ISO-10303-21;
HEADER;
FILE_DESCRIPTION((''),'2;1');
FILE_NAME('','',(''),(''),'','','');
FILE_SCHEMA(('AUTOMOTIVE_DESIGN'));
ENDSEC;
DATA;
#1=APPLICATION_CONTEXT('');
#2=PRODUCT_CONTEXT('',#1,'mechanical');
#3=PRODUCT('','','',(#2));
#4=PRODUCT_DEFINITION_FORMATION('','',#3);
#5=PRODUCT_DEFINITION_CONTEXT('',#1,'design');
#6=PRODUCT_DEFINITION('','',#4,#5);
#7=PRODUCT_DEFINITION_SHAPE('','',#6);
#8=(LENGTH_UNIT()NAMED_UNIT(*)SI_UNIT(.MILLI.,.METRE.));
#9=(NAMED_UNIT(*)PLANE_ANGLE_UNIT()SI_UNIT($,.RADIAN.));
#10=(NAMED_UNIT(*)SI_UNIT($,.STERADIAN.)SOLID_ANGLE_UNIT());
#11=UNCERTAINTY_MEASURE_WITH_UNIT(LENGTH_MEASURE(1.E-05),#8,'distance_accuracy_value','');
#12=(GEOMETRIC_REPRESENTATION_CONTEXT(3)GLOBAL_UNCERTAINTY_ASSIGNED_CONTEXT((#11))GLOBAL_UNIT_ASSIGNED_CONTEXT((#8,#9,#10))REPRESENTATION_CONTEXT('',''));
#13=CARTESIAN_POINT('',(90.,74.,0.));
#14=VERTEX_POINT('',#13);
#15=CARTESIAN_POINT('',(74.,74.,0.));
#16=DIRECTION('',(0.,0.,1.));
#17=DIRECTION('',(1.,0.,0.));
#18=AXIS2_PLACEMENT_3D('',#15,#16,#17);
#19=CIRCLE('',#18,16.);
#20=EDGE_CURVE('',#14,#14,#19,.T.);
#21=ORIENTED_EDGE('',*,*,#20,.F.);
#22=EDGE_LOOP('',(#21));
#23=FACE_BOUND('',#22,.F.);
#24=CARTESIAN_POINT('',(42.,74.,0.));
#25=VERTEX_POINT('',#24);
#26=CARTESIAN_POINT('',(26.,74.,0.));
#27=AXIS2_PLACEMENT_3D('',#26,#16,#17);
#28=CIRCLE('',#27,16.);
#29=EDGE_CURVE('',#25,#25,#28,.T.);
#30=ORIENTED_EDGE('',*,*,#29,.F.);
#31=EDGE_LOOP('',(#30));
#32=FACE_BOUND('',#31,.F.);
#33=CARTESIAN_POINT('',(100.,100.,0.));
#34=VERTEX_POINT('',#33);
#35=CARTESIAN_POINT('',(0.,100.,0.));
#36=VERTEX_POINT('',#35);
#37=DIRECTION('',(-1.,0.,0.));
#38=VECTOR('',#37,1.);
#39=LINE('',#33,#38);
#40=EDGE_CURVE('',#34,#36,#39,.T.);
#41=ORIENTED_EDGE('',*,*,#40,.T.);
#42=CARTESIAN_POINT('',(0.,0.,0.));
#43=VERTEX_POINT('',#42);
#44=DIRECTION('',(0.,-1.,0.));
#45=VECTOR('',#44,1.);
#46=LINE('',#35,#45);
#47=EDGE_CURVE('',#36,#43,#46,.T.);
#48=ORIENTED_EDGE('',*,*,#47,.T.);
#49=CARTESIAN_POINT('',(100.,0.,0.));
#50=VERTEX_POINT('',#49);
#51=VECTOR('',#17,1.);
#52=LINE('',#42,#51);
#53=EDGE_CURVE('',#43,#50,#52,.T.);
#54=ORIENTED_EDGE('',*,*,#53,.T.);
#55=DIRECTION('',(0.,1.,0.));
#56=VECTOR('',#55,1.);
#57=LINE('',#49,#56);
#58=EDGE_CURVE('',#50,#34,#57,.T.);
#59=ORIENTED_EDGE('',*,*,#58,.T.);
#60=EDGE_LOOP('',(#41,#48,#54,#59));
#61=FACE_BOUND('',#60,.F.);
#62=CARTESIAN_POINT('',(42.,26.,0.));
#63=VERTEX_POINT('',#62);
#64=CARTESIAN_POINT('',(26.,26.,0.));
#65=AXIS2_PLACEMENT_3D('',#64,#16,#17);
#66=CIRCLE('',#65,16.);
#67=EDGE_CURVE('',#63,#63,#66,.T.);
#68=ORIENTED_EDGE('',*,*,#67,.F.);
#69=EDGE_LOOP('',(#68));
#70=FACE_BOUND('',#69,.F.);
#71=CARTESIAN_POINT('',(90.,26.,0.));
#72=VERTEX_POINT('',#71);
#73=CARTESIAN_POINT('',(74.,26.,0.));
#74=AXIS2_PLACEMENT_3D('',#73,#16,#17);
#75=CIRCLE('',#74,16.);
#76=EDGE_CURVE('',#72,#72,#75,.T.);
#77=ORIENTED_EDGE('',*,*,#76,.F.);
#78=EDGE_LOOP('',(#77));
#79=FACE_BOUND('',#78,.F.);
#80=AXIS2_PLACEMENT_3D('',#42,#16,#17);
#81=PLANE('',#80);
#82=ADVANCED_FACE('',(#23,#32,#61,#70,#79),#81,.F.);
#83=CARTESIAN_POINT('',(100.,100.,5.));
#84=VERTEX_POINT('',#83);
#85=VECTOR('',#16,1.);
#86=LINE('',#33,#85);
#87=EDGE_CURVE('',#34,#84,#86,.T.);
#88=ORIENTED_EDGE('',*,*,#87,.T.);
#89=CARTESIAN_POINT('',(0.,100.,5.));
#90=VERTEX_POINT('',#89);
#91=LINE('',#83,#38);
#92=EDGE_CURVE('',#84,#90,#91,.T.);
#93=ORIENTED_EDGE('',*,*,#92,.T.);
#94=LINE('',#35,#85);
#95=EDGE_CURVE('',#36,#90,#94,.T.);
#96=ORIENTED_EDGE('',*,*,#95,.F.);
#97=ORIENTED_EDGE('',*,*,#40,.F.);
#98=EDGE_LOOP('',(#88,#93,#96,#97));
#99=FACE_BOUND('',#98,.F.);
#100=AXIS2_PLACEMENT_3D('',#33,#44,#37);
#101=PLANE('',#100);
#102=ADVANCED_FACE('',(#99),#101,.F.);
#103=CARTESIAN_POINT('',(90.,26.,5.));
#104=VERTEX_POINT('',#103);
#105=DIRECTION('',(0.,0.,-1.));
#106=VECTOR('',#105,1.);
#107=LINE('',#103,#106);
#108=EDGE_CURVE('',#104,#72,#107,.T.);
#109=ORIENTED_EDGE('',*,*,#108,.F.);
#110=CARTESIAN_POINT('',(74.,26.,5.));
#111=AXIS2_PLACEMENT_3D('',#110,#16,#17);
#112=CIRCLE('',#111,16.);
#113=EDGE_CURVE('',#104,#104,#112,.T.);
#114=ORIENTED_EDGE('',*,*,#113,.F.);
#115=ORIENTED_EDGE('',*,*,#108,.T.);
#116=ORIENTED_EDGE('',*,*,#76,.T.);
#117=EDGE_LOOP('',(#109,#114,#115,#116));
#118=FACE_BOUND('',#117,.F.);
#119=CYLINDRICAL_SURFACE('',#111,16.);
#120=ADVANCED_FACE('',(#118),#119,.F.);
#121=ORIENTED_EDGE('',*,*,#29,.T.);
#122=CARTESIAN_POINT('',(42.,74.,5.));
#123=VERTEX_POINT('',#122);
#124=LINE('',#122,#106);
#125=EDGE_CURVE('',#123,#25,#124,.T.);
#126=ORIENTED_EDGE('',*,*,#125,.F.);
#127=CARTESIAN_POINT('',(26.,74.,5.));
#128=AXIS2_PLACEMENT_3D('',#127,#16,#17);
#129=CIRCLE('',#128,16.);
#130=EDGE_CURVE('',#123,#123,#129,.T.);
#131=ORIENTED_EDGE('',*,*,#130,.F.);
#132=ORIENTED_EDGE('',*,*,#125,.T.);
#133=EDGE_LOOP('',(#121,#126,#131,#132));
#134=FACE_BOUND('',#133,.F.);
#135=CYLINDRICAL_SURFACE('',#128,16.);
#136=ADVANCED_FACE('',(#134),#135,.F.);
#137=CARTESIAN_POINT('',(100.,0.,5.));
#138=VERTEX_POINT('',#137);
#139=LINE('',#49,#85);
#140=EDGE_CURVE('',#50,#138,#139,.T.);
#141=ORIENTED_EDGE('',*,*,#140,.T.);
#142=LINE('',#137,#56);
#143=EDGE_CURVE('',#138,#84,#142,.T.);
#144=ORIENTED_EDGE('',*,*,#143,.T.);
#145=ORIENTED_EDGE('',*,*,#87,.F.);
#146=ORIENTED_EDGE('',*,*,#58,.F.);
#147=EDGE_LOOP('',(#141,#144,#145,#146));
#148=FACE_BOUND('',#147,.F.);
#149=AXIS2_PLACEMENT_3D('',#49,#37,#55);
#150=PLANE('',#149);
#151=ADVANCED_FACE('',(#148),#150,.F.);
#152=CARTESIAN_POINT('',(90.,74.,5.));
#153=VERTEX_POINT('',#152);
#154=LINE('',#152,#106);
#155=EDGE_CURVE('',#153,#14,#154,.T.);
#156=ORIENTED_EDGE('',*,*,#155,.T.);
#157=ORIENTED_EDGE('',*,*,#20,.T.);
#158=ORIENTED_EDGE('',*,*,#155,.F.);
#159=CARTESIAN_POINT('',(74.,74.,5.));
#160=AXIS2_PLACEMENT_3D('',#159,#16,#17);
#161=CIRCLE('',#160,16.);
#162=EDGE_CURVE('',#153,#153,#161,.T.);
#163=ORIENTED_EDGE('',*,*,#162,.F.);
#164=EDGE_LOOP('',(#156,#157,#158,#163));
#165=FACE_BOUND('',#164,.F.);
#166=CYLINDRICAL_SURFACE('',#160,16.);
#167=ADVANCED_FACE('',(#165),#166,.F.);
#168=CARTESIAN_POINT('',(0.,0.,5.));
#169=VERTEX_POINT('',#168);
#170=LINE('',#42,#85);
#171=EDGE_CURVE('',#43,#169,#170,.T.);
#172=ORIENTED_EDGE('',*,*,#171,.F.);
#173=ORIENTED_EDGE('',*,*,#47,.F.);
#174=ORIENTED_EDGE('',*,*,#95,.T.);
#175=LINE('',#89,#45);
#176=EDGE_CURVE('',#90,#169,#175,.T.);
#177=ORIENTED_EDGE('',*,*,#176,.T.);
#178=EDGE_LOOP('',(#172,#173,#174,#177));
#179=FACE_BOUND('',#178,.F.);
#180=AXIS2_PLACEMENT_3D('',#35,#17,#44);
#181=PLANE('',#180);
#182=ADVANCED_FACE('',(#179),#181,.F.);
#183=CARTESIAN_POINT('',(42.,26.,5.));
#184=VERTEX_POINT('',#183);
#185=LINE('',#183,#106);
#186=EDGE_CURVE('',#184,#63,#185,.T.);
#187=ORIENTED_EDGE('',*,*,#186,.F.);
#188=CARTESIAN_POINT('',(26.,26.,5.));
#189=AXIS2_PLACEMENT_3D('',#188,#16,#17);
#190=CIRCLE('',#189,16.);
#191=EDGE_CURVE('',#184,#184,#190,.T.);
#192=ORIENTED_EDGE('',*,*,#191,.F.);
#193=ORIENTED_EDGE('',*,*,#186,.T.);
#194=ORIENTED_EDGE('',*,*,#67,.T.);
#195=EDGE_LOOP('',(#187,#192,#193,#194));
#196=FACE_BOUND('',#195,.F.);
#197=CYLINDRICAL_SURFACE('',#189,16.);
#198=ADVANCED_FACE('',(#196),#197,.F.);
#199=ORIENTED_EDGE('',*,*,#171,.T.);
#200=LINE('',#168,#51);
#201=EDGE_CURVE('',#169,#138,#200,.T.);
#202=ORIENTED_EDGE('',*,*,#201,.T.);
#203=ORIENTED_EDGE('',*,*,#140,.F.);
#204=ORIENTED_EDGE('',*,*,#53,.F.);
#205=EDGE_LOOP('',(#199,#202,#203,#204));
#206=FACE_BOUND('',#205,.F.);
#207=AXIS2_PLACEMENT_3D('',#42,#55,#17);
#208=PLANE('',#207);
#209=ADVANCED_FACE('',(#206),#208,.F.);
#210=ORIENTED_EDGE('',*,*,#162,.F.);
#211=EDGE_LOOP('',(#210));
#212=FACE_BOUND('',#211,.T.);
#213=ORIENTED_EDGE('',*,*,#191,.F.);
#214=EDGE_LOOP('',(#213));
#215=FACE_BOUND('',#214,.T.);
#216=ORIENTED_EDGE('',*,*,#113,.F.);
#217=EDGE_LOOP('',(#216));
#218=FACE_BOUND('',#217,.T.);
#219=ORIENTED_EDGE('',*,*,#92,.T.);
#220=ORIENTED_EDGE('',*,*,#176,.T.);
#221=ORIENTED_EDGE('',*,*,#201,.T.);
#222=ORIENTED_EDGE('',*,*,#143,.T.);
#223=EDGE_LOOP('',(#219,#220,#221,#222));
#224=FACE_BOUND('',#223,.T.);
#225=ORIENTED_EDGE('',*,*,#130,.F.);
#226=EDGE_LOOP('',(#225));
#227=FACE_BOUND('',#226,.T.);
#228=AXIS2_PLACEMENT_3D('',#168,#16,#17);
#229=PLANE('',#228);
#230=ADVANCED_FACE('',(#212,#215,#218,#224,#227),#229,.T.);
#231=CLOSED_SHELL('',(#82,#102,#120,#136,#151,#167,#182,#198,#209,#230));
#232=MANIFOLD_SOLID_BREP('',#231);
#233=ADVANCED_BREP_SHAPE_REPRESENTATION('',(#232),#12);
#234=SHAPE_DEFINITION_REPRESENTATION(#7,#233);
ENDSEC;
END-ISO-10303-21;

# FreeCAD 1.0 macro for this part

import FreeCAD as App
import Part
import Sketcher

doc = App.newDocument("Part")
params = doc.addObject("Spreadsheet::Sheet", "Params")
for row, (alias, value) in enumerate([
    ("sketch1_width", "100 mm"),
    ("pad1_length", "5 mm"),
    ("sketch2_diameter", "32 mm"),
    ("pocket1_length", "5 mm"),
], start=1):
    params.set(f"A{row}", alias)
    params.set(f"B{row}", "=" + value)
    params.setAlias(f"B{row}", alias)

body = doc.addObject("PartDesign::Body", "Body")

# Sketch on XY plane
sketch1 = doc.addObject("Sketcher::SketchObject", "Sketch")
body.addObject(sketch1)
sketch1.AttachmentSupport = (doc.XY_Plane, [""])
sketch1.MapMode = "FlatFace"
sketch1.addGeometry([
    Part.LineSegment(App.Vector(0, 100, 0), App.Vector(0, 0, 0)),
    Part.LineSegment(App.Vector(0, 0, 0), App.Vector(100, 0, 0)),
    Part.LineSegment(App.Vector(100, 0, 0), App.Vector(100, 100, 0)),
    Part.LineSegment(App.Vector(100, 100, 0), App.Vector(0, 100, 0)),
], False)
sketch1.addConstraint([
    Sketcher.Constraint("Coincident", 0, 2, 1, 1),
    Sketcher.Constraint("Coincident", 1, 2, 2, 1),
    Sketcher.Constraint("Coincident", 2, 2, 3, 1),
    Sketcher.Constraint("Coincident", 3, 2, 0, 1),
    Sketcher.Constraint("Vertical", 0),
    Sketcher.Constraint("Horizontal", 1),
    Sketcher.Constraint("Vertical", 2),
    Sketcher.Constraint("Horizontal", 3),
    Sketcher.Constraint("Coincident", 0, 2, -1, 1),
    Sketcher.Constraint("Equal", 3, 0),
    Sketcher.Constraint("DistanceX", 1, 1, 1, 2, 100.0),
])
sketch1.setExpression("Constraints[10]", "Params.sketch1_width")
pad1 = doc.addObject("PartDesign::Pad", "Pad")
body.addObject(pad1)
pad1.Profile = sketch1
pad1.setExpression("Length", "Params.pad1_length")

# Sketch on XY plane
sketch2 = doc.addObject("Sketcher::SketchObject", "Sketch001")
body.addObject(sketch2)
sketch2.AttachmentSupport = (doc.XY_Plane, [""])
sketch2.MapMode = "FlatFace"
sketch2.AttachmentOffset = App.Placement(App.Vector(0, 0, 5), App.Rotation())
sketch2.addGeometry([
    Part.Circle(App.Vector(26, 74, 0), App.Vector(0, 0, 1), 16),
    Part.Circle(App.Vector(74, 26, 0), App.Vector(0, 0, 1), 16),
    Part.Circle(App.Vector(74, 74, 0), App.Vector(0, 0, 1), 16),
    Part.Circle(App.Vector(26, 26, 0), App.Vector(0, 0, 1), 16),
], False)
sketch2.addConstraint([
    Sketcher.Constraint("Equal", 0, 1),
    Sketcher.Constraint("Equal", 1, 2),
    Sketcher.Constraint("Equal", 2, 3),
    Sketcher.Constraint("Horizontal", 0, 3, 2, 3),
    Sketcher.Constraint("Horizontal", 1, 3, 3, 3),
    Sketcher.Constraint("Vertical", 1, 3, 2, 3),
    Sketcher.Constraint("Vertical", 0, 3, 3, 3),
    Sketcher.Constraint("Diameter", 0, 32.0),
    Sketcher.Constraint("DistanceX", -1, 1, 0, 3, 26.0),
    Sketcher.Constraint("DistanceY", -1, 1, 1, 3, 26.0),
    Sketcher.Constraint("DistanceX", 0, 3, 1, 3, 48.0),
    Sketcher.Constraint("DistanceY", 1, 3, 0, 3, 48.0),
])
sketch2.setExpression("Constraints[7]", "Params.sketch2_diameter")
pocket1 = doc.addObject("PartDesign::Pocket", "Pocket")
body.addObject(pocket1)
pocket1.Profile = sketch2
pocket1.setExpression("Length", "Params.pocket1_length")

doc.recompute()
